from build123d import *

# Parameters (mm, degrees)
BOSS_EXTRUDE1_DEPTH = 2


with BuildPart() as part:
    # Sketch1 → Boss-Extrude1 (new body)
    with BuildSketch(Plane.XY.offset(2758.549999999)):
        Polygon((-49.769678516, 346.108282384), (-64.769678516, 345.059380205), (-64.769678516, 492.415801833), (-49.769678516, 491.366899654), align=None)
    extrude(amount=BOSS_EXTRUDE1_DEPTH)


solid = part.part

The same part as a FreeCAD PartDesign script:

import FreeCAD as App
import Part
import Sketcher

V = App.Vector
Q = App.Units.Quantity


def add_polygon(sketch, points):
    """Adds a closed chain of lines whose ends are joined by coincident constraints."""
    first, n = sketch.GeometryCount, len(points)
    for a, b in zip(points, points[1:] + points[:1]):
        sketch.addGeometry(Part.LineSegment(App.Vector(*a, 0), App.Vector(*b, 0)), False)
    for i in range(n):
        sketch.addConstraint(Sketcher.Constraint("Coincident", first + i, 2, first + (i + 1) % n, 1))

doc = App.newDocument("Part")
body = doc.addObject("PartDesign::Body", "Body")

# Sketch on XY plane
sketch1 = doc.addObject("Sketcher::SketchObject", "Sketch")
body.addObject(sketch1)
sketch1.AttachmentSupport = (doc.XY_Plane, [""])
sketch1.MapMode = "FlatFace"
sketch1.AttachmentOffset = App.Placement(V(0, 0, 2758.55), App.Rotation())
add_polygon(sketch1, [(-65, 345), (-50, 346), (-50, 491), (-65, 492)])  # lines 0-3
sketch1.addConstraint(Sketcher.Constraint("Vertical", 1))
sketch1.addConstraint(Sketcher.Constraint("Vertical", 3))
sketch1.addConstraint(Sketcher.Constraint("Equal", 0, 2))
sketch1.addConstraint(Sketcher.Constraint("Angle", 0, Q("4 deg")))
sketch1.addConstraint(Sketcher.Constraint("DistanceX", 2, 2, 1, 2, 15.0))
sketch1.addConstraint(Sketcher.Constraint("DistanceY", 3, 2, 3, 1, 147.356422))
sketch1.addConstraint(Sketcher.Constraint("DistanceY", -1, 1, 1, 2, 491.3669))
sketch1.addConstraint(Sketcher.Constraint("DistanceX", 0, 2, -1, 1, 49.769679))
pad1 = doc.addObject("PartDesign::Pad", "Pad")
body.addObject(pad1)
pad1.Profile = sketch1
pad1.Length = 2

doc.recompute()
